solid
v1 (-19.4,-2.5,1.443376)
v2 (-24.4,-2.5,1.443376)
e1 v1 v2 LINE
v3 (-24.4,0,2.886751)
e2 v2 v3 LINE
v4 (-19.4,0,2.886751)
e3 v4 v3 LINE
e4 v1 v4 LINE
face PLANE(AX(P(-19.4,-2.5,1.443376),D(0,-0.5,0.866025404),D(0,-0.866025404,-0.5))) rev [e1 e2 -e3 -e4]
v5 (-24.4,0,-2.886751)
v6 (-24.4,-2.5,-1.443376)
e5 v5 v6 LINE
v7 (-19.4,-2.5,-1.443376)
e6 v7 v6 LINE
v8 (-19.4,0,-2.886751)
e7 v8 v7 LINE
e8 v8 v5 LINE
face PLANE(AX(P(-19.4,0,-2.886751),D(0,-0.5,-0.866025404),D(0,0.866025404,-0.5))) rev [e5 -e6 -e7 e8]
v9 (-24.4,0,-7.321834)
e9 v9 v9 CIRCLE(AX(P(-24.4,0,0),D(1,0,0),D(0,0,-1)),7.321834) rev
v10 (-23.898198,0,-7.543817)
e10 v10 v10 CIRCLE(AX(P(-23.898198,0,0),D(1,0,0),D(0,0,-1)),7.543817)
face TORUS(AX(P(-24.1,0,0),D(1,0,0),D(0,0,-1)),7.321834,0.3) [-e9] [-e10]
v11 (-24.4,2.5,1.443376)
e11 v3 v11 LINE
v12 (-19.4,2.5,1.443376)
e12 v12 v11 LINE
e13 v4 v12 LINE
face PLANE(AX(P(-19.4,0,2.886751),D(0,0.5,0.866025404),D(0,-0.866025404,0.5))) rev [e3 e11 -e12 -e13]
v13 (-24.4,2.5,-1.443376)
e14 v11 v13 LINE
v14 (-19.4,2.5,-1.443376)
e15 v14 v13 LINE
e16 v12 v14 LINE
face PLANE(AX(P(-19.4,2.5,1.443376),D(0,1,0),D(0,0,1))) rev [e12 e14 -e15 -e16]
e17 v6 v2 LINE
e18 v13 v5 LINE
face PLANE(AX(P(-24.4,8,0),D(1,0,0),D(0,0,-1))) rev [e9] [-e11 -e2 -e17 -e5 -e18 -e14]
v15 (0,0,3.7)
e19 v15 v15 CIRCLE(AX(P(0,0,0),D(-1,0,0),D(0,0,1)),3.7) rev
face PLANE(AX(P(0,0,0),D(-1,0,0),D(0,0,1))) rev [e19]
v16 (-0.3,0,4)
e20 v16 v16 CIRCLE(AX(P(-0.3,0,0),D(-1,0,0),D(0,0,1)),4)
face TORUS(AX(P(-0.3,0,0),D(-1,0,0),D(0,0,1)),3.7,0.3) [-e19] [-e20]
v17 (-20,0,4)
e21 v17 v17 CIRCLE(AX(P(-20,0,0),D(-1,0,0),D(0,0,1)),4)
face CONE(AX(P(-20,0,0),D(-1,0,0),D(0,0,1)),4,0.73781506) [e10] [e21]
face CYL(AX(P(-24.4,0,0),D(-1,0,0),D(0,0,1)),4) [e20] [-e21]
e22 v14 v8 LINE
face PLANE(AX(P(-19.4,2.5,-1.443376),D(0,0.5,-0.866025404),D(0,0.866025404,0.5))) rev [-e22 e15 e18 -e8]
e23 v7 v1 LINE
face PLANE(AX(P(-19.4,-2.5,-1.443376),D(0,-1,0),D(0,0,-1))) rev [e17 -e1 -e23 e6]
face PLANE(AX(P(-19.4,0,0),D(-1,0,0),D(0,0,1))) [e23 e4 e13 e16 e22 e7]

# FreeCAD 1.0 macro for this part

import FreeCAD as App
import Part
import Sketcher

V = App.Vector
Q = App.Units.Quantity


def edges_at(feature, points):
    """Names of the edges that pass closest to the given points."""
    edges = feature.Shape.Edges
    near = lambda p: min(range(len(edges)), key=lambda i: edges[i].distToShape(Part.Vertex(*p))[0])
    return sorted({f"Edge{near(p) + 1}" for p in points})

doc = App.newDocument("Part")
body = doc.addObject("PartDesign::Body", "Body")

# Sketch on XY plane
sketch1 = doc.addObject("Sketcher::SketchObject", "Sketch")
body.addObject(sketch1)
sketch1.AttachmentSupport = (doc.XY_Plane, [""])
sketch1.MapMode = "FlatFace"
sketch1.addGeometry(Part.LineSegment(V(0, 0, 0), V(0, 4, 0)), False)
sketch1.addGeometry(Part.LineSegment(V(0, 4, 0), V(-20, 4, 0)), False)
sketch1.addGeometry(Part.LineSegment(V(-20, 4, 0), V(-24.4, 8, 0)), False)
sketch1.addGeometry(Part.LineSegment(V(-24.4, 8, 0), V(-24.4, 0, 0)), False)
sketch1.addGeometry(Part.LineSegment(V(-24.4, 0, 0), V(0, 0, 0)), False)
sketch1.addConstraint(Sketcher.Constraint("Coincident", 0, 2, 1, 1))
sketch1.addConstraint(Sketcher.Constraint("Coincident", 1, 2, 2, 1))
sketch1.addConstraint(Sketcher.Constraint("Coincident", 2, 2, 3, 1))
sketch1.addConstraint(Sketcher.Constraint("Coincident", 3, 2, 4, 1))
sketch1.addConstraint(Sketcher.Constraint("Coincident", 4, 2, 0, 1))
sketch1.addConstraint(Sketcher.Constraint("Vertical", 0))
sketch1.addConstraint(Sketcher.Constraint("Horizontal", 1))
sketch1.addConstraint(Sketcher.Constraint("Vertical", 3))
sketch1.addConstraint(Sketcher.Constraint("Horizontal", 4))
sketch1.addConstraint(Sketcher.Constraint("Coincident", 4, 2, -1, 1))
sketch1.addConstraint(Sketcher.Constraint("DistanceX", 1, 2, 1, 1, Q("20 mm")))
sketch1.addConstraint(Sketcher.Constraint("DistanceY", 0, 1, 0, 2, Q("4 mm")))
sketch1.addConstraint(Sketcher.Constraint("DistanceY", 3, 2, 3, 1, Q("8 mm")))
sketch1.addConstraint(Sketcher.Constraint("DistanceX", 4, 1, 4, 2, Q("24.4 mm")))
revolution = doc.addObject("PartDesign::Revolution", "Revolution")
body.addObject(revolution)
revolution.Profile = sketch1
revolution.ReferenceAxis = (sketch1, ["H_Axis"])
revolution.Angle = 360

# Sketch on YZ plane
sketch2 = doc.addObject("Sketcher::SketchObject", "Sketch001")
body.addObject(sketch2)
sketch2.AttachmentSupport = (doc.YZ_Plane, [""])
sketch2.MapMode = "FlatFace"
sketch2.AttachmentOffset = App.Placement(V(0, 0, -24.4), App.Rotation())
sketch2.addGeometry(Part.LineSegment(V(0, 2.886751, 0), V(2.5, 1.443376, 0)), False)
sketch2.addGeometry(Part.LineSegment(V(2.5, 1.443376, 0), V(2.5, -1.443376, 0)), False)
sketch2.addGeometry(Part.LineSegment(V(2.5, -1.443376, 0), V(0, -2.886751, 0)), False)
sketch2.addGeometry(Part.LineSegment(V(0, -2.886751, 0), V(-2.5, -1.443376, 0)), False)
sketch2.addGeometry(Part.LineSegment(V(-2.5, -1.443376, 0), V(-2.5, 1.443376, 0)), False)
sketch2.addGeometry(Part.LineSegment(V(-2.5, 1.443376, 0), V(0, 2.886751, 0)), False)
sketch2.addConstraint(Sketcher.Constraint("Coincident", 0, 2, 1, 1))
sketch2.addConstraint(Sketcher.Constraint("Coincident", 1, 2, 2, 1))
sketch2.addConstraint(Sketcher.Constraint("Coincident", 2, 2, 3, 1))
sketch2.addConstraint(Sketcher.Constraint("Coincident", 3, 2, 4, 1))
sketch2.addConstraint(Sketcher.Constraint("Coincident", 4, 2, 5, 1))
sketch2.addConstraint(Sketcher.Constraint("Coincident", 5, 2, 0, 1))
sketch2.addConstraint(Sketcher.Constraint("Vertical", 1))
sketch2.addConstraint(Sketcher.Constraint("Vertical", 4))
sketch2.addConstraint(Sketcher.Constraint("Symmetric", 0, 2, 3, 2, -1, 1))
sketch2.addConstraint(Sketcher.Constraint("Symmetric", 2, 2, 5, 2, -1, 1))
sketch2.addConstraint(Sketcher.Constraint("PointOnObject", 2, 2, -2))
sketch2.addConstraint(Sketcher.Constraint("Parallel", 2, 5))
sketch2.addConstraint(Sketcher.Constraint("Horizontal", 1, 2, 3, 2))
sketch2.addConstraint(Sketcher.Constraint("Angle", 0, Q("-30 deg")))
sketch2.addConstraint(Sketcher.Constraint("DistanceX", 3, 2, 1, 2, Q("5 mm")))
sketch2.addConstraint(Sketcher.Constraint("DistanceY", 1, 2, 1, 1, Q("2.886751 mm")))
pocket1 = doc.addObject("PartDesign::Pocket", "Pocket")
body.addObject(pocket1)
pocket1.Profile = sketch2
pocket1.Length = 5
pocket1.Reversed = True
doc.recompute()

fillet = doc.addObject("PartDesign::Fillet", "Fillet")
body.addObject(fillet)
fillet.Base = (pocket1, edges_at(pocket1, [(-24.4, 0, -8), (0, 0, -4)]))
fillet.Radius = 0.3

doc.recompute()
